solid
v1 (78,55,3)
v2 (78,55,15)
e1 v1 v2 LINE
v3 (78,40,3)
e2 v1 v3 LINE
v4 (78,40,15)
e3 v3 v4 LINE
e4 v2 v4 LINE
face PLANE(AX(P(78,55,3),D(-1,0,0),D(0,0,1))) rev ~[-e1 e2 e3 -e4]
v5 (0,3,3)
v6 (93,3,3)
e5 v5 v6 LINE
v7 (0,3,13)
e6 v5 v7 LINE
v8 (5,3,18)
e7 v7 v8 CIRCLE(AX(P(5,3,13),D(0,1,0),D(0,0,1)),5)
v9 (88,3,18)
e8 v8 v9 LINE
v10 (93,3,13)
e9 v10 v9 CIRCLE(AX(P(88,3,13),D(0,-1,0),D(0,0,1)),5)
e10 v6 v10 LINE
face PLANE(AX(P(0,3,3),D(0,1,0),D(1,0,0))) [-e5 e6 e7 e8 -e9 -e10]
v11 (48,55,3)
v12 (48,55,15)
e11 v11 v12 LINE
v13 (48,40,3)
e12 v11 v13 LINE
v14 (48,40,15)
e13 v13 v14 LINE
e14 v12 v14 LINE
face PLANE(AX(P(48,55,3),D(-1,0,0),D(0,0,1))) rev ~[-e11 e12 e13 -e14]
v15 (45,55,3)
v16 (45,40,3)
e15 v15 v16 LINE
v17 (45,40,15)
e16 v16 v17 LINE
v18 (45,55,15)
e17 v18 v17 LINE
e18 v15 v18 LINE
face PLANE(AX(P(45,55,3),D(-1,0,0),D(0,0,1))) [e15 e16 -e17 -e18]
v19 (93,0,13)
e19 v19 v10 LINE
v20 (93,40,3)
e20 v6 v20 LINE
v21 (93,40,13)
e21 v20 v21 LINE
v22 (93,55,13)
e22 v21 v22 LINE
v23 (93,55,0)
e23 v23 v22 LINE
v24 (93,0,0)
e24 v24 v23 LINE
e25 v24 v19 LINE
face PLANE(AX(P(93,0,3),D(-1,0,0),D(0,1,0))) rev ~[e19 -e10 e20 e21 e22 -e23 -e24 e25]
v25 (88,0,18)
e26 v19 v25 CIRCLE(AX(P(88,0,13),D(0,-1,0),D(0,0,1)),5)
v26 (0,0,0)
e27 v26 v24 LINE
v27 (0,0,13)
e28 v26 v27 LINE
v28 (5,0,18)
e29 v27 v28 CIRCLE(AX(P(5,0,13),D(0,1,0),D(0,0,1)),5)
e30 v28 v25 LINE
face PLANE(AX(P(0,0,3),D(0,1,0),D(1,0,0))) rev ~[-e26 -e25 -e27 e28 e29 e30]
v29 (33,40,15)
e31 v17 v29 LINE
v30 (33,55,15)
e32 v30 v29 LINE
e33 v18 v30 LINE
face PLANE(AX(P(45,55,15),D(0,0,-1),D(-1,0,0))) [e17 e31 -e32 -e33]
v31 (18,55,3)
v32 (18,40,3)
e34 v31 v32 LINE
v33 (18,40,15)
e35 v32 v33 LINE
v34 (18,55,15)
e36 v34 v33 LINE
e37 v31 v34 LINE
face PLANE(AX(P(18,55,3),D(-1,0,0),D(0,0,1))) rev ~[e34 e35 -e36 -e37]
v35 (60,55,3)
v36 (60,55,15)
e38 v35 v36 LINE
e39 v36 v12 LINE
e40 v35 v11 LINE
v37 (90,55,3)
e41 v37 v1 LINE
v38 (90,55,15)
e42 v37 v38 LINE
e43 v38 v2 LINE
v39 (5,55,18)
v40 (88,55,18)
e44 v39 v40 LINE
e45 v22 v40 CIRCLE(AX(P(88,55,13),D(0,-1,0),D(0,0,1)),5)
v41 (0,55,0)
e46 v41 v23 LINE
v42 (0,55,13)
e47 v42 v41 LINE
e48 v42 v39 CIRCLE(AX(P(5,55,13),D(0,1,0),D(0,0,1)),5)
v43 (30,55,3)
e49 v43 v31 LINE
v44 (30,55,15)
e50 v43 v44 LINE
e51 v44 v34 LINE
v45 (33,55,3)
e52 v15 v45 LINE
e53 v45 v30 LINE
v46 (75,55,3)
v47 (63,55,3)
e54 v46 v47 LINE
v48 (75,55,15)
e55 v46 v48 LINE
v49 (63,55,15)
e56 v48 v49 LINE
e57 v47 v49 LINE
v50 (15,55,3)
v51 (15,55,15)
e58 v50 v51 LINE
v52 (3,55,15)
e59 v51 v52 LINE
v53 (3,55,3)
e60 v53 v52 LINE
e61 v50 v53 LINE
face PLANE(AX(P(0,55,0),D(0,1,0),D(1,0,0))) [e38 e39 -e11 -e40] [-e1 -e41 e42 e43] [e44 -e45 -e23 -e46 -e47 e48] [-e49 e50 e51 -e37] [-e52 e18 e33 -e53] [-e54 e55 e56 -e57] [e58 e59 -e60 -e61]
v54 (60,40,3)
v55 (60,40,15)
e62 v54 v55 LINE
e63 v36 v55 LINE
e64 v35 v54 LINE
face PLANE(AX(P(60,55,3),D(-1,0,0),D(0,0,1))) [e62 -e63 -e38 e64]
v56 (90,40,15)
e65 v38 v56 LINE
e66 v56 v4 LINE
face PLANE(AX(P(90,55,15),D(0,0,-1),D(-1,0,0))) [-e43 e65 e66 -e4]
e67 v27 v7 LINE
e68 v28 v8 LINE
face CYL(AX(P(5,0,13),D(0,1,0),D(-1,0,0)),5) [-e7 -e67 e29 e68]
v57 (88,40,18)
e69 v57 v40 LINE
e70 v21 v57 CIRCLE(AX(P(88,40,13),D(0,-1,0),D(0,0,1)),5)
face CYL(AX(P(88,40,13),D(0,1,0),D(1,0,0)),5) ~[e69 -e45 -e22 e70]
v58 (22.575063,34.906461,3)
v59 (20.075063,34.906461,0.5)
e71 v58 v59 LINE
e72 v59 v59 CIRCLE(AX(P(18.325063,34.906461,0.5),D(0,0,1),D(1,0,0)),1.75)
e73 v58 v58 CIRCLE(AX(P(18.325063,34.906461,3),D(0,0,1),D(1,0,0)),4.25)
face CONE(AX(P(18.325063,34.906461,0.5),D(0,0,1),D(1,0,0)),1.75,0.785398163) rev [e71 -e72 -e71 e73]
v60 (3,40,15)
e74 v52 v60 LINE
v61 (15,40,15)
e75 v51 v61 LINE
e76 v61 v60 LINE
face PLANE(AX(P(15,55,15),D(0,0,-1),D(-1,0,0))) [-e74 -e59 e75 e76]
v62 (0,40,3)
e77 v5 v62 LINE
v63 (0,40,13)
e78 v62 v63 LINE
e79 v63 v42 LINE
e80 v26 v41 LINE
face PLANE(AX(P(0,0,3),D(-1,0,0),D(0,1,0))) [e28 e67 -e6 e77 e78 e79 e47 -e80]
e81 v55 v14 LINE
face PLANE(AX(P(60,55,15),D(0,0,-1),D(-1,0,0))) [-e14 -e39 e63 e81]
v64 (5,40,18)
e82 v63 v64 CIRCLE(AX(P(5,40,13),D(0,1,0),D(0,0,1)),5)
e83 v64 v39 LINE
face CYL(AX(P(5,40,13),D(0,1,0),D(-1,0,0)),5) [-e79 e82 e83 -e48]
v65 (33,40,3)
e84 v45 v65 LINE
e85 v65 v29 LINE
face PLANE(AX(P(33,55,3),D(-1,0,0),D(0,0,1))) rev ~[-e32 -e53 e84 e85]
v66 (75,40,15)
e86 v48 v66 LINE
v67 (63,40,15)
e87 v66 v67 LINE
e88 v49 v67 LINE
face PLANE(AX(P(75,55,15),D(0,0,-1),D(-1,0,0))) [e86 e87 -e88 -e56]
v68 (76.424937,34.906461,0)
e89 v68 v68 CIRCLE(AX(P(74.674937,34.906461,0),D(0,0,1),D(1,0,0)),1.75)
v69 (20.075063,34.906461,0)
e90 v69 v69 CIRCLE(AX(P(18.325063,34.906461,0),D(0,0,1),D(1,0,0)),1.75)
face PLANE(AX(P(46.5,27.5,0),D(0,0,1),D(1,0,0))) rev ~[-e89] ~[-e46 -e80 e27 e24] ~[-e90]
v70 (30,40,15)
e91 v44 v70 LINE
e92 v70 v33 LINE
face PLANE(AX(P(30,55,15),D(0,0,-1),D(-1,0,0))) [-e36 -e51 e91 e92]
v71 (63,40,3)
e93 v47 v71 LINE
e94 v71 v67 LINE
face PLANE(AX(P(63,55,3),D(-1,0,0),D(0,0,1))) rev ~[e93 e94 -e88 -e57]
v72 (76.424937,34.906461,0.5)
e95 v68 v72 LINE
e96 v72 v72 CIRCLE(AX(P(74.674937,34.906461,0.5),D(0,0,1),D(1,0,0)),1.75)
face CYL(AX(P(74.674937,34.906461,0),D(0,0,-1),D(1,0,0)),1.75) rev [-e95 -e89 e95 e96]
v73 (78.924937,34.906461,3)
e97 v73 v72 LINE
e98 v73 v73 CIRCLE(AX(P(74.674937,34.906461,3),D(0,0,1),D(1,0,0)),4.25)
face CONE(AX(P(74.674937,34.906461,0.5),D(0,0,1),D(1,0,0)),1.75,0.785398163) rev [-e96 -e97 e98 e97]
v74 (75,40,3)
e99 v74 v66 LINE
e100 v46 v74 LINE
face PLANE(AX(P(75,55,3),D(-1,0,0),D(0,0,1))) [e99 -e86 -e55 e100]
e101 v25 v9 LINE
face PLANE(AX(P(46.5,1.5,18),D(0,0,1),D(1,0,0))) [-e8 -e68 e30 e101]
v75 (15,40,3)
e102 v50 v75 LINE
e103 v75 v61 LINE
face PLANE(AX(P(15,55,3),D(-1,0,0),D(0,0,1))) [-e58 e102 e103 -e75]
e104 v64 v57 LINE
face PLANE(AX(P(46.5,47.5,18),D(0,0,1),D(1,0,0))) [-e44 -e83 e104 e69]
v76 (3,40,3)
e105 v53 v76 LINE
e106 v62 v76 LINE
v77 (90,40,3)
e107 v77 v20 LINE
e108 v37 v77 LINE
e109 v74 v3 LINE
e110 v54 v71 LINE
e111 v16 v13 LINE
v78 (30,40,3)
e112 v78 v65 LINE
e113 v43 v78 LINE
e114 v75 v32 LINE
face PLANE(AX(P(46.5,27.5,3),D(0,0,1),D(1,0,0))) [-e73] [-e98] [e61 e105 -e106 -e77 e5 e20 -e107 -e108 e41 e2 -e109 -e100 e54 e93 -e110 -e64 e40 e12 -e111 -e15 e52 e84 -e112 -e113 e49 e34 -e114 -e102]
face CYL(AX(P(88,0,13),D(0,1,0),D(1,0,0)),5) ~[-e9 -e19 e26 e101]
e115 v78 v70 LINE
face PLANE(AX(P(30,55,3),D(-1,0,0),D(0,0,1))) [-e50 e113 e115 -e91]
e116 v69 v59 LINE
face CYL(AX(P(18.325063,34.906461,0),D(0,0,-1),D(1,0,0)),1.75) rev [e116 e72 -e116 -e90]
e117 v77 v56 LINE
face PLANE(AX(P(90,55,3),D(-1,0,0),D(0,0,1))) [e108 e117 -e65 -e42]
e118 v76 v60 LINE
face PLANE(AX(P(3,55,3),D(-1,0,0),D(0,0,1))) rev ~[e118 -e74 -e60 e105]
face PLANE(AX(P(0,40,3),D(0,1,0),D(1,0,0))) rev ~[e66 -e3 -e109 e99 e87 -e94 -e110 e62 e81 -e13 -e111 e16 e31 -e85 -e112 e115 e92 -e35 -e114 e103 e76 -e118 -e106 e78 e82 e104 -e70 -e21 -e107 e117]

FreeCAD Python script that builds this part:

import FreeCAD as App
import Part
import Sketcher
from FreeCAD import Vector


def edges_at(feature, points):
    """Names of the edges that pass closest to the given points."""
    edges = feature.Shape.Edges
    near = lambda p: min(range(len(edges)), key=lambda i: edges[i].distToShape(Part.Vertex(*p))[0])
    return sorted({f"Edge{near(p) + 1}" for p in points})


def add_polygon(sketch, points):
    """Adds a closed chain of lines whose ends are joined by coincident constraints."""
    first, n = sketch.GeometryCount, len(points)
    for a, b in zip(points, points[1:] + points[:1]):
        sketch.addGeometry(Part.LineSegment(App.Vector(*a, 0), App.Vector(*b, 0)), False)
    for i in range(n):
        sketch.addConstraint(Sketcher.Constraint("Coincident", first + i, 2, first + (i + 1) % n, 1))

doc = App.newDocument("Part")
body = doc.addObject("PartDesign::Body", "Body")

sketch1 = doc.addObject("Sketcher::SketchObject", "Sketch")
body.addObject(sketch1)
sketch1.AttachmentSupport = (doc.XY_Plane, [""])
sketch1.MapMode = "FlatFace"
add_polygon(sketch1, [(0, 55), (0, 0), (93, 0), (93, 55)])
sketch1.addGeometry(Part.Circle(Vector(18.3, 34.9, 0), Vector(0, 0, 1), 1.8), False)
sketch1.addGeometry(Part.Circle(Vector(74.7, 34.9, 0), Vector(0, 0, 1), 1.8), False)
sketch1.addConstraint([
    Sketcher.Constraint("Vertical", 0),
    Sketcher.Constraint("Horizontal", 1),
    Sketcher.Constraint("Vertical", 2),
    Sketcher.Constraint("Horizontal", 3),
    Sketcher.Constraint("Coincident", 0, 2, -1, 1),
    Sketcher.Constraint("Equal", 4, 5),
    Sketcher.Constraint("Horizontal", 4, 3, 5, 3),
    Sketcher.Constraint("Diameter", 4, 3.5),
    Sketcher.Constraint("DistanceX", 1, 1, 1, 2, 93.0),
    Sketcher.Constraint("DistanceY", 0, 2, 0, 1, 55.0),
    Sketcher.Constraint("DistanceY", -1, 1, 4, 3, 34.906461),
    Sketcher.Constraint("DistanceX", -1, 1, 4, 3, 18.325063),
    Sketcher.Constraint("DistanceX", -1, 1, 5, 3, 74.674937),
])
pad1 = doc.addObject("PartDesign::Pad", "Pad")
body.addObject(pad1)
pad1.Profile = sketch1
pad1.Length = 3

sketch2 = doc.addObject("Sketcher::SketchObject", "Sketch001")
body.addObject(sketch2)
sketch2.AttachmentSupport = (doc.XY_Plane, [""])
sketch2.MapMode = "FlatFace"
sketch2.AttachmentOffset = App.Placement(Vector(0, 0, 3), App.Rotation())
add_polygon(sketch2, [(0, 3), (0, 0), (93, 0), (93, 3)])
add_polygon(sketch2, [(0, 55), (0, 40), (93, 40), (93, 55)])
sketch2.addConstraint([
    Sketcher.Constraint("Vertical", 0),
    Sketcher.Constraint("Horizontal", 1),
    Sketcher.Constraint("Vertical", 2),
    Sketcher.Constraint("Horizontal", 3),
    Sketcher.Constraint("Vertical", 4),
    Sketcher.Constraint("Horizontal", 5),
    Sketcher.Constraint("Vertical", 6),
    Sketcher.Constraint("Horizontal", 7),
    Sketcher.Constraint("Coincident", 0, 2, -1, 1),
    Sketcher.Constraint("PointOnObject", 4, 2, -2),
    Sketcher.Constraint("Vertical", 2, 2, 5, 2),
    Sketcher.Constraint("DistanceX", 1, 1, 1, 2, 93.0),
    Sketcher.Constraint("DistanceY", 0, 2, 0, 1, 3.0),
    Sketcher.Constraint("DistanceY", 4, 2, 4, 1, 15.0),
    Sketcher.Constraint("DistanceY", -1, 1, 4, 2, 40.0),
])
pad2 = doc.addObject("PartDesign::Pad", "Pad001")
body.addObject(pad2)
pad2.Profile = sketch2
pad2.Length = 15

sketch3 = doc.addObject("Sketcher::SketchObject", "Sketch002")
body.addObject(sketch3)
sketch3.AttachmentSupport = (doc.XZ_Plane, [""])
sketch3.MapMode = "FlatFace"
sketch3.AttachmentOffset = App.Placement(Vector(0, 0, -55), App.Rotation())
add_polygon(sketch3, [(90, 15), (90, 3), (78, 3), (78, 15)])
add_polygon(sketch3, [(75, 15), (75, 3), (63, 3), (63, 15)])
add_polygon(sketch3, [(60, 15), (60, 3), (48, 3), (48, 15)])
add_polygon(sketch3, [(45, 15), (45, 3), (33, 3), (33, 15)])
add_polygon(sketch3, [(30, 15), (30, 3), (18, 3), (18, 15)])
add_polygon(sketch3, [(15, 15), (15, 3), (3, 3), (3, 15)])
sketch3.addConstraint([
    Sketcher.Constraint("Vertical", 0),
    Sketcher.Constraint("Horizontal", 1),
    Sketcher.Constraint("Vertical", 2),
    Sketcher.Constraint("Horizontal", 3),
    Sketcher.Constraint("Vertical", 4),
    Sketcher.Constraint("Horizontal", 5),
    Sketcher.Constraint("Vertical", 6),
    Sketcher.Constraint("Horizontal", 7),
    Sketcher.Constraint("Vertical", 8),
    Sketcher.Constraint("Horizontal", 9),
    Sketcher.Constraint("Vertical", 10),
    Sketcher.Constraint("Horizontal", 11),
    Sketcher.Constraint("Vertical", 12),
    Sketcher.Constraint("Horizontal", 13),
    Sketcher.Constraint("Vertical", 14),
    Sketcher.Constraint("Horizontal", 15),
    Sketcher.Constraint("Vertical", 16),
    Sketcher.Constraint("Horizontal", 17),
    Sketcher.Constraint("Vertical", 18),
    Sketcher.Constraint("Horizontal", 19),
    Sketcher.Constraint("Vertical", 20),
    Sketcher.Constraint("Horizontal", 21),
    Sketcher.Constraint("Vertical", 22),
    Sketcher.Constraint("Horizontal", 23),
    Sketcher.Constraint("Horizontal", 1, 2, 4, 2),
    Sketcher.Constraint("Horizontal", 3, 2, 6, 2),
    Sketcher.Constraint("Horizontal", 5, 2, 8, 2),
    Sketcher.Constraint("Horizontal", 7, 2, 10, 2),
    Sketcher.Constraint("Horizontal", 9, 2, 12, 2),
    Sketcher.Constraint("Horizontal", 11, 2, 14, 2),
    Sketcher.Constraint("Horizontal", 13, 2, 16, 2),
    Sketcher.Constraint("Horizontal", 15, 2, 18, 2),
    Sketcher.Constraint("Horizontal", 17, 2, 20, 2),
    Sketcher.Constraint("Horizontal", 19, 2, 22, 2),
    Sketcher.Constraint("Equal", 3, 5),
    Sketcher.Constraint("Equal", 7, 9),
    Sketcher.Constraint("Equal", 11, 13),
    Sketcher.Constraint("Equal", 15, 17),
    Sketcher.Constraint("Equal", 19, 21),
    Sketcher.Constraint("Equal", 23, 0),
    Sketcher.Constraint("DistanceX", 1, 2, 1, 1, 12.0),
    Sketcher.Constraint("DistanceX", -1, 1, 0, 2, 90.0),
    Sketcher.Constraint("DistanceY", -1, 1, 0, 2, 3.0),
    Sketcher.Constraint("DistanceX", -1, 1, 4, 2, 75.0),
    Sketcher.Constraint("DistanceX", -1, 1, 8, 2, 60.0),
    Sketcher.Constraint("DistanceX", -1, 1, 12, 2, 45.0),
    Sketcher.Constraint("DistanceX", -1, 1, 16, 2, 30.0),
    Sketcher.Constraint("DistanceX", -1, 1, 20, 2, 15.0),
])
pocket1 = doc.addObject("PartDesign::Pocket", "Pocket")
body.addObject(pocket1)
pocket1.Profile = sketch3
pocket1.Length = 15
pocket1.Reversed = True
doc.recompute()

chamfer = doc.addObject("PartDesign::Chamfer", "Chamfer")
body.addObject(chamfer)
chamfer.Base = (pocket1, edges_at(pocket1, [(16.575, 34.906, 3), (72.925, 34.906, 3)]))
chamfer.Size = 2.5
doc.recompute()

fillet = doc.addObject("PartDesign::Fillet", "Fillet")
body.addObject(fillet)
fillet.Base = (chamfer, edges_at(chamfer, [
    (0, 47.5, 18),
    (93, 47.5, 18),
    (93, 1.5, 18),
    (0, 1.5, 18),
]))
fillet.Radius = 5

doc.recompute()
